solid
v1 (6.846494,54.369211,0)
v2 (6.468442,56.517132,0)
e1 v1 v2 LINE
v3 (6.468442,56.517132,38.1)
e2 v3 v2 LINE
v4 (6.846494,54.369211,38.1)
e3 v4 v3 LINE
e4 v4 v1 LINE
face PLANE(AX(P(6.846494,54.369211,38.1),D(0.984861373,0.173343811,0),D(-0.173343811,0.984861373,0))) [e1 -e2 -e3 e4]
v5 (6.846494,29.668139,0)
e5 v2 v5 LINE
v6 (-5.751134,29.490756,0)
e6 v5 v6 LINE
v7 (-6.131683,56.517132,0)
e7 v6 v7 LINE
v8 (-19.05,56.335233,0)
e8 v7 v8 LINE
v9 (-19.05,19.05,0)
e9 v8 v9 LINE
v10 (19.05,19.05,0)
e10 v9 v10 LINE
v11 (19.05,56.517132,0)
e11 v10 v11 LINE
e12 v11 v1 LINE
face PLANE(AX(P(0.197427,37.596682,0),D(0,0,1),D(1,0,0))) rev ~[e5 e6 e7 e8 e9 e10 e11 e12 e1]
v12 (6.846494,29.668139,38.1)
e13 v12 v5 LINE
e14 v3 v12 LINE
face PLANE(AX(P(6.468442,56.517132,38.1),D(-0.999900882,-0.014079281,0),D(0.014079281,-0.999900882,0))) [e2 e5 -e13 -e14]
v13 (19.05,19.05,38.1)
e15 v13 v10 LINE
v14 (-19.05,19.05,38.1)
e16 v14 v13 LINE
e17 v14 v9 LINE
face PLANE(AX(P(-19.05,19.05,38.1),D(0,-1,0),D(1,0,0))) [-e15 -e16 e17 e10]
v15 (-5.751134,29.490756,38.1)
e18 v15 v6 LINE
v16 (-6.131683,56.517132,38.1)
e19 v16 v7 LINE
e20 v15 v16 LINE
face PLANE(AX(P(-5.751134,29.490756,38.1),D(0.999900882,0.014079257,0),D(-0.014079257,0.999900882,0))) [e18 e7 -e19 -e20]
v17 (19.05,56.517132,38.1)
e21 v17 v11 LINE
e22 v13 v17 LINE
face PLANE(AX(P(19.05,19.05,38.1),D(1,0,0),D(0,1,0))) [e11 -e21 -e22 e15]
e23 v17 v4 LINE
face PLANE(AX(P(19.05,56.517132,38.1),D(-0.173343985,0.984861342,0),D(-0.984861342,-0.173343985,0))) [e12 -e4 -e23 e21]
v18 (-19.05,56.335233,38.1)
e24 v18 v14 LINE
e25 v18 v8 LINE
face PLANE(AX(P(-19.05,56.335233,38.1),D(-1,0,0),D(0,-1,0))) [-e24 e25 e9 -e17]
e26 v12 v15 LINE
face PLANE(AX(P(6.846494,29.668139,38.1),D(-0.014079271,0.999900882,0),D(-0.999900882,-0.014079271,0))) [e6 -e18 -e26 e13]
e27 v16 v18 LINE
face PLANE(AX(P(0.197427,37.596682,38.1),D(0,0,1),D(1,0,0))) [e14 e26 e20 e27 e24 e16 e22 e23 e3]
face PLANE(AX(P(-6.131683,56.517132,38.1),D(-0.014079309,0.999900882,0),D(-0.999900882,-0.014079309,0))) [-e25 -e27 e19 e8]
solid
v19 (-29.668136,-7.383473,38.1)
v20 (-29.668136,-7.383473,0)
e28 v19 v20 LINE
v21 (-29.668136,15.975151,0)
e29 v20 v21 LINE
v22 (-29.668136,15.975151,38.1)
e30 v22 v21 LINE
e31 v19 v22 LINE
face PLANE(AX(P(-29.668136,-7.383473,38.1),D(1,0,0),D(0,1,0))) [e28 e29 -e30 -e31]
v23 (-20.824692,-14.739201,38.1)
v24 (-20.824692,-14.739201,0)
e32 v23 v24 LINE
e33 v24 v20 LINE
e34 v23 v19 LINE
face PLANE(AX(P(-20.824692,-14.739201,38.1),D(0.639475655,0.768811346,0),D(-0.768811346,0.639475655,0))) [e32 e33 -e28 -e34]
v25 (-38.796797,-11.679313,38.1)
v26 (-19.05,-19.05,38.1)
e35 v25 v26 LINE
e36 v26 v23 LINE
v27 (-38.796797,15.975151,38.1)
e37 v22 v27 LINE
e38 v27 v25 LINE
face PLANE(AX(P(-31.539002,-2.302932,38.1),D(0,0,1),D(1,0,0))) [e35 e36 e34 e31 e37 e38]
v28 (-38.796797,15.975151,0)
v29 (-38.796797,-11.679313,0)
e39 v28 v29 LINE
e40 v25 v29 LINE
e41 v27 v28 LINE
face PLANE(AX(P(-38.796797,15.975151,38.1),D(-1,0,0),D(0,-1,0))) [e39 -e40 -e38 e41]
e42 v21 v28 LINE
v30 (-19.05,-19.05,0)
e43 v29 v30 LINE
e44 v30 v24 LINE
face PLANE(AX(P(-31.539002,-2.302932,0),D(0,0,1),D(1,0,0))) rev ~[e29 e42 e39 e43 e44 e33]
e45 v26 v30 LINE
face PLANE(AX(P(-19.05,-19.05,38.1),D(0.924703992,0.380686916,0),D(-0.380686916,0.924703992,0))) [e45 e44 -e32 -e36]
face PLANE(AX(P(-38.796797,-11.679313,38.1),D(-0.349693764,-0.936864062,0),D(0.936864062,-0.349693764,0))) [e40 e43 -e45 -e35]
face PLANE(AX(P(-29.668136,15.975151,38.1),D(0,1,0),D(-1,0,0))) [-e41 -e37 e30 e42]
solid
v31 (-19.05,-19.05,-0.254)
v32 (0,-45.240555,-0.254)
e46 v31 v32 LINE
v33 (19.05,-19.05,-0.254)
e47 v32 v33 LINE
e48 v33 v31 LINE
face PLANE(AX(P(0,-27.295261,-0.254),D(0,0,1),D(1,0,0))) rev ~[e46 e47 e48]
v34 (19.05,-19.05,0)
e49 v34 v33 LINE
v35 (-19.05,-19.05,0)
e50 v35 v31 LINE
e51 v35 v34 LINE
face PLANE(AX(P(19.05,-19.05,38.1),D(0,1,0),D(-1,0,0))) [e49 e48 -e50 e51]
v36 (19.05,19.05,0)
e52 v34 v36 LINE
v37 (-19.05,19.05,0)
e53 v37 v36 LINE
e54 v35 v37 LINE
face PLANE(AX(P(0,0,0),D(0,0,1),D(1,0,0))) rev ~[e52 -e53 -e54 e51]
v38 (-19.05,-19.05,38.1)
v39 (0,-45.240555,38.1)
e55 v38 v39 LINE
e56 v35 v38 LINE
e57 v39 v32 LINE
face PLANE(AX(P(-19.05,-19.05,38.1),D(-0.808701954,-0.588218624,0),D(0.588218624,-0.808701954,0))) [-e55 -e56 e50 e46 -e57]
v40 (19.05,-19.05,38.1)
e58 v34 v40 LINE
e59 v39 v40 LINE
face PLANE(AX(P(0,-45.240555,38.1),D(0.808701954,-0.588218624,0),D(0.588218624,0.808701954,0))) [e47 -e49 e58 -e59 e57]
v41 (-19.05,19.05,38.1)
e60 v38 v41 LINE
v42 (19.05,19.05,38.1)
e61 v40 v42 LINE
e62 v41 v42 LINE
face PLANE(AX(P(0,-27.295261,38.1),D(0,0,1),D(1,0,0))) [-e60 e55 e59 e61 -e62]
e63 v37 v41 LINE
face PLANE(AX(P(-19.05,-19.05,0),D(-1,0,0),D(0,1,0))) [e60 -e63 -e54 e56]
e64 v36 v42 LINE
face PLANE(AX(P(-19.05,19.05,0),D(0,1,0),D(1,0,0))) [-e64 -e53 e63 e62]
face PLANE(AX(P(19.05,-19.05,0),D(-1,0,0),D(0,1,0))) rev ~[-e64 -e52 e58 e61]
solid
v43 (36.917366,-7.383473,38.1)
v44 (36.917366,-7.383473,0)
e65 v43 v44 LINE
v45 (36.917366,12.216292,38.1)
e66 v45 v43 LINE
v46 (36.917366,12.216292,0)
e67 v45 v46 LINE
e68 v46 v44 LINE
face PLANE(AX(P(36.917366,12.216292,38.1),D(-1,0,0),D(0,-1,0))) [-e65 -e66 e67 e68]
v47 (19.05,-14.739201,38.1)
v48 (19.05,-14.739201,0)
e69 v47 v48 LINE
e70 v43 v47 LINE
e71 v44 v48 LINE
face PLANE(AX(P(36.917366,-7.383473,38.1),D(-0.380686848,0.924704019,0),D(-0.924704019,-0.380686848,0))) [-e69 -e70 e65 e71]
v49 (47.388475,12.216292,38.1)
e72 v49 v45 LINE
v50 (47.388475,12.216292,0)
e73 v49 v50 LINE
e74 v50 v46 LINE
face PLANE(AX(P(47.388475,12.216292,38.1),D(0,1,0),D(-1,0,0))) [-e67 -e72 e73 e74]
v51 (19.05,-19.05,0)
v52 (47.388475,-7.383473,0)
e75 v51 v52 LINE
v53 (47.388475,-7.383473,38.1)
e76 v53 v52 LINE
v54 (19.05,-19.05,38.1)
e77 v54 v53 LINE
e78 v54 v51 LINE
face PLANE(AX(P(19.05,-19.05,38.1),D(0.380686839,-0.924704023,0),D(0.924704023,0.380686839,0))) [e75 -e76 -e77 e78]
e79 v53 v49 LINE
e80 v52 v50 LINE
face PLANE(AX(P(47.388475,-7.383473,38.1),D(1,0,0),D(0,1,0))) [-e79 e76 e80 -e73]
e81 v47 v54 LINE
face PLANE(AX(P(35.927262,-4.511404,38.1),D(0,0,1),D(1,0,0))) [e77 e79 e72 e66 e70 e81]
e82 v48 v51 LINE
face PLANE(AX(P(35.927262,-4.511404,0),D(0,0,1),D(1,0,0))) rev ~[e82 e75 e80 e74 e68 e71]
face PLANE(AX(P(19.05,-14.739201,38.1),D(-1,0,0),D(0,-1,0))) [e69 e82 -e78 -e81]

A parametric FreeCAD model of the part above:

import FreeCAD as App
import Part
import Sketcher
from FreeCAD import Vector
Q = App.Units.Quantity


def add_polygon(sketch, points):
    """Adds a closed chain of lines whose ends are joined by coincident constraints."""
    first, n = sketch.GeometryCount, len(points)
    for a, b in zip(points, points[1:] + points[:1]):
        sketch.addGeometry(Part.LineSegment(App.Vector(*a, 0), App.Vector(*b, 0)), False)
    for i in range(n):
        sketch.addConstraint(Sketcher.Constraint("Coincident", first + i, 2, first + (i + 1) % n, 1))

doc = App.newDocument("Part")
params = doc.addObject("Spreadsheet::Sheet", "Params")
for row, (alias, value) in enumerate([
    ("sketch1_width", "1.5 in"),
    ("pad1_length", "1.5 in"),
    ("sketch2_width", "1.5 in"),
    ("pad2_length", "1.51 in"),
    ("sketch3_width", "1.5 in"),
    ("pad3_length", "1.5 in"),
], start=1):
    params.set(f"A{row}", alias)
    params.set(f"B{row}", "=" + value)
    params.setAlias(f"B{row}", alias)

body = doc.addObject("PartDesign::Body", "Body")

sketch1 = body.newObject("Sketcher::SketchObject", "Sketch")
sketch1.AttachmentSupport = (doc.getObject("XY_Plane"), [""])
sketch1.MapMode = "FlatFace"
add_polygon(sketch1, [(-19.05, 19.05), (-19.05, -19.05), (19.05, -19.05), (19.05, 19.05)])
sketch1.addConstraint(Sketcher.Constraint("Vertical", 0))
sketch1.addConstraint(Sketcher.Constraint("Horizontal", 1))
sketch1.addConstraint(Sketcher.Constraint("Vertical", 2))
sketch1.addConstraint(Sketcher.Constraint("Horizontal", 3))
sketch1.addConstraint(Sketcher.Constraint("Symmetric", 0, 2, 2, 2, -1, 1))
sketch1.addConstraint(Sketcher.Constraint("Equal", 3, 0))
sketch1.addConstraint(Sketcher.Constraint("DistanceX", 1, 1, 1, 2, Q("1.5 in")))
sketch1.setExpression("Constraints[10]", "Params.sketch1_width")
pad1 = body.newObject("PartDesign::Pad", "Pad")
pad1.Profile = sketch1
pad1.setExpression("Length", "Params.pad1_length")

sketch2 = body.newObject("Sketcher::SketchObject", "Sketch001")
sketch2.AttachmentSupport = (doc.getObject("XY_Plane"), [""])
sketch2.MapMode = "FlatFace"
sketch2.AttachmentOffset = App.Placement(Vector(0, 0, 1.5 * 25.4), App.Rotation())
add_polygon(sketch2, [(19.05, -19.05), (-19.05, -19.05), (0, -45.240555)])
sketch2.addConstraint(Sketcher.Constraint("Horizontal", 0))
sketch2.addConstraint(Sketcher.Constraint("PointOnObject", 1, 2, -2))
sketch2.addConstraint(Sketcher.Constraint("Equal", 1, 2))
sketch2.addConstraint(Sketcher.Constraint("DistanceX", 0, 2, 0, 1, Q("1.5 in")))
sketch2.addConstraint(Sketcher.Constraint("DistanceY", 0, 2, -1, 1, Q("0.75 in")))
sketch2.addConstraint(Sketcher.Constraint("Distance", 1, Q("32.385918 mm")))
sketch2.setExpression("Constraints[6]", "Params.sketch2_width")
pad2 = body.newObject("PartDesign::Pad", "Pad001")
pad2.Profile = sketch2
pad2.setExpression("Length", "Params.pad2_length")
pad2.Reversed = True
body2 = doc.addObject("PartDesign::Body", "Body001")
body2.AllowCompound = True

sketch3 = body2.newObject("Sketcher::SketchObject", "Sketch002")
sketch3.AttachmentSupport = (doc.getObject("XY_Plane001"), [""])
sketch3.MapMode = "FlatFace"
sketch3.AttachmentOffset = App.Placement(Vector(0, 0, 1.5 * 25.4), App.Rotation())
add_polygon(sketch3, [(-19.05, 19.05), (19.05, 19.05), (19.05, 56.517132), (6.846494, 54.369211), (6.468442, 56.517132), (6.846494, 29.668139), (-5.751134, 29.490756), (-6.131683, 56.517132), (-19.05, 56.335233)])
add_polygon(sketch3, [(19.05, -14.739201), (19.05, -19.05), (47.388475, -7.383473), (47.388475, 12.216292), (36.917366, 12.216292), (36.917366, -7.383473)])
add_polygon(sketch3, [(-38.796797, -11.679313), (-19.05, -19.05), (-20.824692, -14.739201), (-29.668136, -7.383473), (-29.668136, 15.975151), (-38.796797, 15.975151)])
sketch3.addConstraint(Sketcher.Constraint("Horizontal", 0))
sketch3.addConstraint(Sketcher.Constraint("Vertical", 1))
sketch3.addConstraint(Sketcher.Constraint("Vertical", 8))
sketch3.addConstraint(Sketcher.Constraint("Vertical", 9))
sketch3.addConstraint(Sketcher.Constraint("Vertical", 11))
sketch3.addConstraint(Sketcher.Constraint("Horizontal", 12))
sketch3.addConstraint(Sketcher.Constraint("Vertical", 13))
sketch3.addConstraint(Sketcher.Constraint("Vertical", 18))
sketch3.addConstraint(Sketcher.Constraint("Horizontal", 19))
sketch3.addConstraint(Sketcher.Constraint("Vertical", 20))
sketch3.addConstraint(Sketcher.Constraint("DistanceX", 0, 1, 0, 2, Q("1.5 in")))
sketch3.addConstraint(Sketcher.Constraint("DistanceY", 9, 2, 0, 2, Q("1.5 in")))
sketch3.addConstraint(Sketcher.Constraint("DistanceX", 8, 2, 9, 2, Q("1.5 in")))
sketch3.addConstraint(Sketcher.Constraint("DistanceY", 15, 2, 8, 2, Q("1.5 in")))
sketch3.addConstraint(Sketcher.Constraint("DistanceX", 15, 2, 9, 2, Q("1.5 in")))
sketch3.addConstraint(Sketcher.Constraint("DistanceX", -1, 1, 0, 2, Q("0.75 in")))
sketch3.addConstraint(Sketcher.Constraint("DistanceY", -1, 1, 0, 2, Q("0.75 in")))
sketch3.addConstraint(Sketcher.Constraint("DistanceY", 9, 2, 9, 1, Q("4.310799 mm")))
sketch3.addConstraint(Sketcher.Constraint("DistanceX", 12, 2, 12, 1, Q("10.471109 mm")))
sketch3.addConstraint(Sketcher.Constraint("DistanceX", 19, 2, 19, 1, Q("9.128661 mm")))
sketch3.addConstraint(Sketcher.Constraint("DistanceY", 1, 1, 1, 2, Q("37.467132 mm")))
sketch3.addConstraint(Sketcher.Constraint("DistanceY", 16, 2, -1, 1, Q("14.739201 mm")))
sketch3.addConstraint(Sketcher.Constraint("DistanceY", 7, 2, 6, 2, Q("0.181899 mm")))
sketch3.addConstraint(Sketcher.Constraint("DistanceY", 7, 2, 3, 2, Q("0.181899 mm")))
sketch3.addConstraint(Sketcher.Constraint("DistanceX", 17, 2, 5, 2, Q("23.917002 mm")))
sketch3.addConstraint(Sketcher.Constraint("Distance", 2, Q("12.39109 mm")))
sketch3.addConstraint(Sketcher.Constraint("Distance", 17, Q("11.502749 mm")))
sketch3.addConstraint(Sketcher.Constraint("DistanceY", 8, 2, 8, 1, Q("37.285233 mm")))
sketch3.addConstraint(Sketcher.Constraint("DistanceY", 11, 1, 11, 2, Q("19.599765 mm")))
sketch3.addConstraint(Sketcher.Constraint("DistanceY", 13, 2, 13, 1, Q("19.599765 mm")))
sketch3.addConstraint(Sketcher.Constraint("DistanceY", 18, 1, 18, 2, Q("23.358624 mm")))
sketch3.addConstraint(Sketcher.Constraint("DistanceY", 20, 2, 20, 1, Q("27.654464 mm")))
sketch3.addConstraint(Sketcher.Constraint("DistanceY", -1, 1, 2, 2, Q("54.369211 mm")))
sketch3.addConstraint(Sketcher.Constraint("DistanceX", -1, 1, 3, 2, Q("6.468442 mm")))
sketch3.addConstraint(Sketcher.Constraint("DistanceY", -1, 1, 4, 2, Q("29.668139 mm")))
sketch3.addConstraint(Sketcher.Constraint("DistanceY", -1, 1, 11, 2, Q("12.216292 mm")))
sketch3.addConstraint(Sketcher.Constraint("DistanceX", 16, 2, -1, 1, Q("20.824692 mm")))
sketch3.addConstraint(Sketcher.Constraint("DistanceY", -1, 1, 18, 2, Q("15.975151 mm")))
sketch3.addConstraint(Sketcher.Constraint("DistanceX", 6, 2, 5, 2, Q("0.380549 mm")))
sketch3.addConstraint(Sketcher.Constraint("DistanceX", 4, 2, 10, 2, Q("40.541981 mm")))
sketch3.addConstraint(Sketcher.Constraint("DistanceX", 5, 2, 10, 2, Q("53.139609 mm")))
sketch3.addConstraint(Sketcher.Constraint("DistanceY", 10, 2, 5, 2, Q("36.874229 mm")))
sketch3.setExpression("Constraints[31]", "Params.sketch3_width")
pad3 = body2.newObject("PartDesign::Pad", "Pad002")
pad3.Profile = sketch3
pad3.setExpression("Length", "Params.pad3_length")
pad3.Reversed = True

doc.recompute()
